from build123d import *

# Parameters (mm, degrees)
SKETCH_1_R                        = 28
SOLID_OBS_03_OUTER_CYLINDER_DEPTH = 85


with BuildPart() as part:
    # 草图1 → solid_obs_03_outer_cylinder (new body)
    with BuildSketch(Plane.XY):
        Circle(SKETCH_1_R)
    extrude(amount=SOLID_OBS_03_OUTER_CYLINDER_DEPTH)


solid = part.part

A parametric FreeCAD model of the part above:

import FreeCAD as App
import Part
import Sketcher
from FreeCAD import Vector
Q = App.Units.Quantity

doc = App.newDocument("Part")
body = doc.addObject("PartDesign::Body", "Body")

# Sketch on XY plane
sketch1 = doc.addObject("Sketcher::SketchObject", "Sketch")
body.addObject(sketch1)
sketch1.AttachmentSupport = (doc.XY_Plane, [""])
sketch1.MapMode = "FlatFace"
sketch1.addGeometry(Part.Circle(Vector(0, 0, 0), Vector(0, 0, 1), 28), False)
sketch1.addConstraint(Sketcher.Constraint("Coincident", 0, 3, -1, 1))
sketch1.addConstraint(Sketcher.Constraint("Diameter", 0, Q("56 mm")))
pad1 = doc.addObject("PartDesign::Pad", "Pad")
body.addObject(pad1)
pad1.Profile = sketch1
pad1.Length = 85

doc.recompute()
